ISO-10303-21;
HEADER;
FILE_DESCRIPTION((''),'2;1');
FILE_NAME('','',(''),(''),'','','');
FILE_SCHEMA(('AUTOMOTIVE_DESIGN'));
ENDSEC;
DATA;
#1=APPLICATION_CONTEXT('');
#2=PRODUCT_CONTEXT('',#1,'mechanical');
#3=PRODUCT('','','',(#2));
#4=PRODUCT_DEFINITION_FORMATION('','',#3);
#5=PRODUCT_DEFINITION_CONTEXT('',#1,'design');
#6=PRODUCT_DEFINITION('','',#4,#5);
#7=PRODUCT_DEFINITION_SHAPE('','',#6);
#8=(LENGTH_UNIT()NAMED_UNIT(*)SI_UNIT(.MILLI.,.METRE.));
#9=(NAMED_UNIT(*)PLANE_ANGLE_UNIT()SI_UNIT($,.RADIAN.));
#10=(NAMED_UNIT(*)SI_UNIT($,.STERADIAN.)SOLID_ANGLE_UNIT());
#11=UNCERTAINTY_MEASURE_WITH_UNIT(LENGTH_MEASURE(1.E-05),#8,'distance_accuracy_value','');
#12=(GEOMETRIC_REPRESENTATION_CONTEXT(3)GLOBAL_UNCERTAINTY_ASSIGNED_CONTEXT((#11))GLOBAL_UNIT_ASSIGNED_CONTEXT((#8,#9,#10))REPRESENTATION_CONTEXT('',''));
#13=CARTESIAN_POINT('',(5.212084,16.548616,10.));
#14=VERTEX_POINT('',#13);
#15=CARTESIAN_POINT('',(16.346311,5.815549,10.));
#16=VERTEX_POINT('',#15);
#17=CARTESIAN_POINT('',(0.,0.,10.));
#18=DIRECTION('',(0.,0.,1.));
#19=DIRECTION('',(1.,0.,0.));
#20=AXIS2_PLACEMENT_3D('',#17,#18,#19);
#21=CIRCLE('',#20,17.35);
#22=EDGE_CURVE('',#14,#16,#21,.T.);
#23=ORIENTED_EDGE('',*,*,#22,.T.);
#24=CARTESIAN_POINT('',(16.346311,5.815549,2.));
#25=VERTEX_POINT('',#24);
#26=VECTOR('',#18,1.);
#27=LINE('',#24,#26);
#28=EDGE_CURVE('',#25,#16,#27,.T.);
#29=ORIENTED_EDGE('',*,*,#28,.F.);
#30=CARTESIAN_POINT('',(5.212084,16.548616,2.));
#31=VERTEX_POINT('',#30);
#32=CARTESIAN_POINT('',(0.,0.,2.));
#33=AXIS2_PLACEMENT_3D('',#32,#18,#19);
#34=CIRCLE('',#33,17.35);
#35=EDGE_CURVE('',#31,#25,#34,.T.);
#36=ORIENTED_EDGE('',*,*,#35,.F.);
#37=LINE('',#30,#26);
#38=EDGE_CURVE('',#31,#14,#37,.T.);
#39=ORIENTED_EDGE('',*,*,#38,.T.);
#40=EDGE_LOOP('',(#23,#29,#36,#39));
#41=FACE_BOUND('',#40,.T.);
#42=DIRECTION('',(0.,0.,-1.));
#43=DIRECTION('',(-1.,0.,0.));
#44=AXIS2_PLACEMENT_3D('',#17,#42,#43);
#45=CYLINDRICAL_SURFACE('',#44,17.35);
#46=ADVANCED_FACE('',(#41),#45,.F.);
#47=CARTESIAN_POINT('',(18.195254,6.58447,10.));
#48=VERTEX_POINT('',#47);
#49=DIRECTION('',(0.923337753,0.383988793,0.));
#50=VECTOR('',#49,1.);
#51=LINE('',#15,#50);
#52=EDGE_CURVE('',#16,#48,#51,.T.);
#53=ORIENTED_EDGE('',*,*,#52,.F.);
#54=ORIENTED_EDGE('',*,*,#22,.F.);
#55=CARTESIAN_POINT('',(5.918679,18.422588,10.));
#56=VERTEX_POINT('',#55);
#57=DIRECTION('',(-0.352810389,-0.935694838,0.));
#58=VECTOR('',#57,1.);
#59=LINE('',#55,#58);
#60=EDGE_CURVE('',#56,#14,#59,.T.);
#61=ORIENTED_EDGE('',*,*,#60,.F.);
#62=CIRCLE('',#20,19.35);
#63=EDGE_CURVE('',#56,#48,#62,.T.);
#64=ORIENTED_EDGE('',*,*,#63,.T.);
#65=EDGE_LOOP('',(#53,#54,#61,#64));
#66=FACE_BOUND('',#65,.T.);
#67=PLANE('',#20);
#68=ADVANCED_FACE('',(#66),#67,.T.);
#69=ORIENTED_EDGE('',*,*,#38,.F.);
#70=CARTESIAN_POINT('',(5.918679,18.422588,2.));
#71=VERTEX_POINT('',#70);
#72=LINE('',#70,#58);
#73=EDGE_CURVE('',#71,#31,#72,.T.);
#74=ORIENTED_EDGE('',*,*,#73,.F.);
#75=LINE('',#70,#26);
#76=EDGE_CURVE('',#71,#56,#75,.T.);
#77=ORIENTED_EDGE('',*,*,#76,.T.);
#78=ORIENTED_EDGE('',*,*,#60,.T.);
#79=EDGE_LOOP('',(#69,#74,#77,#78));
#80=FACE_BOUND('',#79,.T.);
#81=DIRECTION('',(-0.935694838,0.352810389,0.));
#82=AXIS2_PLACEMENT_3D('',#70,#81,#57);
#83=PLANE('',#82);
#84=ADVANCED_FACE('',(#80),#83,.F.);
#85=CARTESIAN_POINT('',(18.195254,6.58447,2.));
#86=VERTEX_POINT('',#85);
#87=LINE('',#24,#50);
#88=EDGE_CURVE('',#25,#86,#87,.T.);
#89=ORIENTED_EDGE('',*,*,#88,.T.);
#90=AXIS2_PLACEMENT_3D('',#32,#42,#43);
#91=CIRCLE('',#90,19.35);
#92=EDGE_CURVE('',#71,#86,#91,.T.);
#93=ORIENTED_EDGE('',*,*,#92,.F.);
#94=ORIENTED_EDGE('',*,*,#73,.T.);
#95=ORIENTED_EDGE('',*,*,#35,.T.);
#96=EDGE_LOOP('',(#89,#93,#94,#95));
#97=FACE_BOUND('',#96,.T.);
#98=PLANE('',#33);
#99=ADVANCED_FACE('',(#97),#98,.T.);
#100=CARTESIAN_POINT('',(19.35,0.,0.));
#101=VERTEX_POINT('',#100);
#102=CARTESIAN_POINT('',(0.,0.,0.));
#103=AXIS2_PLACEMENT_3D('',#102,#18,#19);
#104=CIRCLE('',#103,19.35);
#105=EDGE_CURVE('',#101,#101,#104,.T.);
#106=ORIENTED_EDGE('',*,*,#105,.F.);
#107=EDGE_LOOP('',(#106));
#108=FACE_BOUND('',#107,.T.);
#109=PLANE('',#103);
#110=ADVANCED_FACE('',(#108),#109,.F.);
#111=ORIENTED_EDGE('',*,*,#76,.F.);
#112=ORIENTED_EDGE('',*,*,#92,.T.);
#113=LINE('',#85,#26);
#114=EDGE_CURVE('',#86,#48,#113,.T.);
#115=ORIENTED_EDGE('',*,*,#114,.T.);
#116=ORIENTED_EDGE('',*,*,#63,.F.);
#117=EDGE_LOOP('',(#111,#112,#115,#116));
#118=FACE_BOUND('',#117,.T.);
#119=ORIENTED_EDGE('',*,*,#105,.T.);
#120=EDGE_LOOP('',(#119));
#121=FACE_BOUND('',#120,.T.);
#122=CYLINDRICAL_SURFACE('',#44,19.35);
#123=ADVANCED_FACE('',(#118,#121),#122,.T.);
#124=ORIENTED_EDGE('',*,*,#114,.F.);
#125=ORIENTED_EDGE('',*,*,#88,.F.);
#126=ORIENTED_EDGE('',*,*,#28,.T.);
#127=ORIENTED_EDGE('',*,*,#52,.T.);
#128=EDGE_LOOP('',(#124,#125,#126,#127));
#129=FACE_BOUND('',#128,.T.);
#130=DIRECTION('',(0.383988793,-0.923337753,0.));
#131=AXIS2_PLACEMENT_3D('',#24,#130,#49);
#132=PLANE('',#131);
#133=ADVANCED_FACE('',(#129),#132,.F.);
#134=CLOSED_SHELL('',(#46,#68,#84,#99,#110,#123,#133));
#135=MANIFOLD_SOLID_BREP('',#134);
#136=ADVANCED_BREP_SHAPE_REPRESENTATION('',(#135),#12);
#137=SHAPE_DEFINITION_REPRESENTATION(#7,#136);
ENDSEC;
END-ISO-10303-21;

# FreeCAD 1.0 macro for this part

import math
import FreeCAD as App
import Part
import Sketcher

V = App.Vector


def faces_at(feature, points):
    """Names of the faces that lie closest to the given points."""
    faces = feature.Shape.Faces
    near = lambda p: min(range(len(faces)), key=lambda i: faces[i].distToShape(Part.Vertex(*p))[0])
    return sorted({f"Face{near(p) + 1}" for p in points})

doc = App.newDocument("Part")
body = doc.addObject("PartDesign::Body", "Body")

sketch1 = body.newObject("Sketcher::SketchObject", "Sketch")
sketch1.AttachmentSupport = (doc.getObject("XY_Plane"), [""])
sketch1.MapMode = "FlatFace"
sketch1.addGeometry(Part.Circle(V(0, 0, 0), V(0, 0, 1), 19.35), False)
sketch1.addConstraint([
    Sketcher.Constraint("Coincident", 0, 3, -1, 1),
    Sketcher.Constraint("Diameter", 0, 38.7),
])
pad1 = body.newObject("PartDesign::Pad", "Pad")
pad1.Profile = sketch1
pad1.Length = 10
doc.recompute()

thickness = body.newObject("PartDesign::Thickness", "Thickness")
thickness.Base = (pad1, faces_at(pad1, [(0, 0, 10)]))
thickness.Value = 2
thickness.Reversed = True
thickness.Join = "Intersection"

sketch2 = body.newObject("Sketcher::SketchObject", "Sketch001")
sketch2.AttachmentSupport = (doc.getObject("XY_Plane"), [""])
sketch2.MapMode = "FlatFace"
sketch2.AttachmentOffset = App.Placement(V(0, 0, 10), App.Rotation())
sketch2.addGeometry([
    Part.LineSegment(V(5.918679, 18.422588, 0), V(5.212084, 16.548616, 0)),
    Part.ArcOfCircle(Part.Circle(V(-1.265715, -1.313023, 0), V(0, 0, 1), 19), math.radians(22.035933), math.radians(70.066041)),
    Part.LineSegment(V(16.346311, 5.815549, 0), V(18.195254, 6.58447, 0)),
    Part.ArcOfCircle(Part.Circle(V(3.491039, 3.620339, 0), V(0, 0, 1), 15), math.radians(11.397158), math.radians(80.686134)),
], False)
sketch2.addConstraint([
    Sketcher.Constraint("Coincident", 0, 2, 1, 2),
    Sketcher.Constraint("Coincident", 1, 1, 2, 1),
    Sketcher.Constraint("Coincident", 2, 2, 3, 1),
    Sketcher.Constraint("Coincident", 3, 2, 0, 1),
    Sketcher.Constraint("Radius", 1, 19.0),
    Sketcher.Constraint("Radius", 3, 15.0),
    Sketcher.Constraint("DistanceX", 1, 3, 0, 2, 6.477799),
    Sketcher.Constraint("Distance", 0, 2.00276),
    Sketcher.Constraint("DistanceX", -1, 1, 3, 3, 3.491039),
    Sketcher.Constraint("DistanceY", -1, 1, 3, 3, 3.620339),
    Sketcher.Constraint("DistanceX", -1, 1, 1, 1, 16.346311),
    Sketcher.Constraint("DistanceY", -1, 1, 1, 1, 5.815549),
    Sketcher.Constraint("DistanceY", -1, 1, 2, 2, 6.58447),
    Sketcher.Constraint("DistanceX", -1, 1, 3, 2, 5.918679),
])
pocket1 = body.newObject("PartDesign::Pocket", "Pocket")
pocket1.Profile = sketch2
pocket1.Length = 8

doc.recompute()
